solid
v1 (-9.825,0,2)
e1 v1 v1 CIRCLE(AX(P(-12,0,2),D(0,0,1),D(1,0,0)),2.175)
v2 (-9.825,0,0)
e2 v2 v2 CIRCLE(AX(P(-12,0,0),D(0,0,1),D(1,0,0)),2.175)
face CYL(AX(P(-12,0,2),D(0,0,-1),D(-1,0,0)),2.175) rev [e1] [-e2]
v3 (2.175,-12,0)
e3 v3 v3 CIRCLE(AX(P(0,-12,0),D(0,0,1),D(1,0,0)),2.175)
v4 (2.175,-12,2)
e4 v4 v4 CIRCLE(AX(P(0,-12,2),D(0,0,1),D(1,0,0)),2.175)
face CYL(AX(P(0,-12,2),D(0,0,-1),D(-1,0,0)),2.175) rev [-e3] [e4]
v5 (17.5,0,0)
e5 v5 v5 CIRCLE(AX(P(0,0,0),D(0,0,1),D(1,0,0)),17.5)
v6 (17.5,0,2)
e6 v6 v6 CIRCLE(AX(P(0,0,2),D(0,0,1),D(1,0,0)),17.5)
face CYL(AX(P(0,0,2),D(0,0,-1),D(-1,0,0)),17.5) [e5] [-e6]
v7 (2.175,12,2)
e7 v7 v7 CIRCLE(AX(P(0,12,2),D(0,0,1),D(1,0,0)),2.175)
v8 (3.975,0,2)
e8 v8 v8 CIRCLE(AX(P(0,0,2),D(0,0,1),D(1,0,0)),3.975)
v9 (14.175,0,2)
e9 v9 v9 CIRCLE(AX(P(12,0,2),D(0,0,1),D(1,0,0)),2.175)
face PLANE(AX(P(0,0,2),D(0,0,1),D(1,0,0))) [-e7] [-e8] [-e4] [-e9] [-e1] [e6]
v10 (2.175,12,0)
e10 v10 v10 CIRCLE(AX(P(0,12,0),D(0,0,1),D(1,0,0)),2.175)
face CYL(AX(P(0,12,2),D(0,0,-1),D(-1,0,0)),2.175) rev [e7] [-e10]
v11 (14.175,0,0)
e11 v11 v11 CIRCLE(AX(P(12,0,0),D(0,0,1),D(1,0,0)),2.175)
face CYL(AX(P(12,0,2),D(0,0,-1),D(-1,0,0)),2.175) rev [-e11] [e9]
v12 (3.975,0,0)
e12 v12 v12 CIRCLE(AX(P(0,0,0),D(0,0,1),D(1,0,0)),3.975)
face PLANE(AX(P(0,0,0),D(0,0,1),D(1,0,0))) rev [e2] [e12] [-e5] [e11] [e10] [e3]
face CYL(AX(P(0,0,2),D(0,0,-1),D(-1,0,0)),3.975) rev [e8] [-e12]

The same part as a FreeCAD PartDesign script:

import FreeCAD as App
import Part
import Sketcher

V = App.Vector

doc = App.newDocument("Part")
params = doc.addObject("Spreadsheet::Sheet", "Params")
for row, (alias, value) in enumerate([
    ("sketch1_diameter", "35 mm"),
    ("sketch1_diameter2", "4.35 mm"),
    ("sketch1_diameter3", "7.95 mm"),
    ("pad1_length", "2 mm"),
], start=1):
    params.set(f"A{row}", alias)
    params.set(f"B{row}", "=" + value)
    params.setAlias(f"B{row}", alias)

body = doc.addObject("PartDesign::Body", "Body")

# Sketch on XY plane
sketch1 = doc.addObject("Sketcher::SketchObject", "Sketch")
body.addObject(sketch1)
sketch1.AttachmentSupport = (doc.XY_Plane, [""])
sketch1.MapMode = "FlatFace"
sketch1.addGeometry([
    Part.Circle(V(0, 0, 0), V(0, 0, 1), 17.5),  # 0
    Part.Circle(V(0, -12, 0), V(0, 0, 1), 2.2),  # 1
    Part.Circle(V(-12, 0, 0), V(0, 0, 1), 2.2),  # 2
    Part.Circle(V(0, 0, 0), V(0, 0, 1), 4),  # 3
    Part.Circle(V(12, 0, 0), V(0, 0, 1), 2.2),  # 4
    Part.Circle(V(0, 12, 0), V(0, 0, 1), 2.2),  # 5
], False)
sketch1.addConstraint([
    Sketcher.Constraint("Coincident", 0, 3, -1, 1),
    Sketcher.Constraint("Coincident", 3, 3, -1, 1),
    Sketcher.Constraint("Equal", 1, 2),
    Sketcher.Constraint("Equal", 2, 4),
    Sketcher.Constraint("Equal", 4, 5),
    Sketcher.Constraint("Symmetric", 2, 3, 4, 3, -1, 1),
    Sketcher.Constraint("Symmetric", 1, 3, 5, 3, -1, 1),
    Sketcher.Constraint("PointOnObject", 1, 3, -2),
    Sketcher.Constraint("PointOnObject", 2, 3, -1),
    Sketcher.Constraint("Diameter", 0, 35.0),
    Sketcher.Constraint("Diameter", 1, 4.35),
    Sketcher.Constraint("Diameter", 3, 7.95),
    Sketcher.Constraint("DistanceY", 1, 3, -1, 1, 12.0),
    Sketcher.Constraint("DistanceX", 2, 3, -1, 1, 12.0),
])
sketch1.setExpression("Constraints[9]", "Params.sketch1_diameter")
sketch1.setExpression("Constraints[10]", "Params.sketch1_diameter2")
sketch1.setExpression("Constraints[11]", "Params.sketch1_diameter3")
pad1 = doc.addObject("PartDesign::Pad", "Pad")
body.addObject(pad1)
pad1.Profile = sketch1
pad1.setExpression("Length", "Params.pad1_length")

doc.recompute()
